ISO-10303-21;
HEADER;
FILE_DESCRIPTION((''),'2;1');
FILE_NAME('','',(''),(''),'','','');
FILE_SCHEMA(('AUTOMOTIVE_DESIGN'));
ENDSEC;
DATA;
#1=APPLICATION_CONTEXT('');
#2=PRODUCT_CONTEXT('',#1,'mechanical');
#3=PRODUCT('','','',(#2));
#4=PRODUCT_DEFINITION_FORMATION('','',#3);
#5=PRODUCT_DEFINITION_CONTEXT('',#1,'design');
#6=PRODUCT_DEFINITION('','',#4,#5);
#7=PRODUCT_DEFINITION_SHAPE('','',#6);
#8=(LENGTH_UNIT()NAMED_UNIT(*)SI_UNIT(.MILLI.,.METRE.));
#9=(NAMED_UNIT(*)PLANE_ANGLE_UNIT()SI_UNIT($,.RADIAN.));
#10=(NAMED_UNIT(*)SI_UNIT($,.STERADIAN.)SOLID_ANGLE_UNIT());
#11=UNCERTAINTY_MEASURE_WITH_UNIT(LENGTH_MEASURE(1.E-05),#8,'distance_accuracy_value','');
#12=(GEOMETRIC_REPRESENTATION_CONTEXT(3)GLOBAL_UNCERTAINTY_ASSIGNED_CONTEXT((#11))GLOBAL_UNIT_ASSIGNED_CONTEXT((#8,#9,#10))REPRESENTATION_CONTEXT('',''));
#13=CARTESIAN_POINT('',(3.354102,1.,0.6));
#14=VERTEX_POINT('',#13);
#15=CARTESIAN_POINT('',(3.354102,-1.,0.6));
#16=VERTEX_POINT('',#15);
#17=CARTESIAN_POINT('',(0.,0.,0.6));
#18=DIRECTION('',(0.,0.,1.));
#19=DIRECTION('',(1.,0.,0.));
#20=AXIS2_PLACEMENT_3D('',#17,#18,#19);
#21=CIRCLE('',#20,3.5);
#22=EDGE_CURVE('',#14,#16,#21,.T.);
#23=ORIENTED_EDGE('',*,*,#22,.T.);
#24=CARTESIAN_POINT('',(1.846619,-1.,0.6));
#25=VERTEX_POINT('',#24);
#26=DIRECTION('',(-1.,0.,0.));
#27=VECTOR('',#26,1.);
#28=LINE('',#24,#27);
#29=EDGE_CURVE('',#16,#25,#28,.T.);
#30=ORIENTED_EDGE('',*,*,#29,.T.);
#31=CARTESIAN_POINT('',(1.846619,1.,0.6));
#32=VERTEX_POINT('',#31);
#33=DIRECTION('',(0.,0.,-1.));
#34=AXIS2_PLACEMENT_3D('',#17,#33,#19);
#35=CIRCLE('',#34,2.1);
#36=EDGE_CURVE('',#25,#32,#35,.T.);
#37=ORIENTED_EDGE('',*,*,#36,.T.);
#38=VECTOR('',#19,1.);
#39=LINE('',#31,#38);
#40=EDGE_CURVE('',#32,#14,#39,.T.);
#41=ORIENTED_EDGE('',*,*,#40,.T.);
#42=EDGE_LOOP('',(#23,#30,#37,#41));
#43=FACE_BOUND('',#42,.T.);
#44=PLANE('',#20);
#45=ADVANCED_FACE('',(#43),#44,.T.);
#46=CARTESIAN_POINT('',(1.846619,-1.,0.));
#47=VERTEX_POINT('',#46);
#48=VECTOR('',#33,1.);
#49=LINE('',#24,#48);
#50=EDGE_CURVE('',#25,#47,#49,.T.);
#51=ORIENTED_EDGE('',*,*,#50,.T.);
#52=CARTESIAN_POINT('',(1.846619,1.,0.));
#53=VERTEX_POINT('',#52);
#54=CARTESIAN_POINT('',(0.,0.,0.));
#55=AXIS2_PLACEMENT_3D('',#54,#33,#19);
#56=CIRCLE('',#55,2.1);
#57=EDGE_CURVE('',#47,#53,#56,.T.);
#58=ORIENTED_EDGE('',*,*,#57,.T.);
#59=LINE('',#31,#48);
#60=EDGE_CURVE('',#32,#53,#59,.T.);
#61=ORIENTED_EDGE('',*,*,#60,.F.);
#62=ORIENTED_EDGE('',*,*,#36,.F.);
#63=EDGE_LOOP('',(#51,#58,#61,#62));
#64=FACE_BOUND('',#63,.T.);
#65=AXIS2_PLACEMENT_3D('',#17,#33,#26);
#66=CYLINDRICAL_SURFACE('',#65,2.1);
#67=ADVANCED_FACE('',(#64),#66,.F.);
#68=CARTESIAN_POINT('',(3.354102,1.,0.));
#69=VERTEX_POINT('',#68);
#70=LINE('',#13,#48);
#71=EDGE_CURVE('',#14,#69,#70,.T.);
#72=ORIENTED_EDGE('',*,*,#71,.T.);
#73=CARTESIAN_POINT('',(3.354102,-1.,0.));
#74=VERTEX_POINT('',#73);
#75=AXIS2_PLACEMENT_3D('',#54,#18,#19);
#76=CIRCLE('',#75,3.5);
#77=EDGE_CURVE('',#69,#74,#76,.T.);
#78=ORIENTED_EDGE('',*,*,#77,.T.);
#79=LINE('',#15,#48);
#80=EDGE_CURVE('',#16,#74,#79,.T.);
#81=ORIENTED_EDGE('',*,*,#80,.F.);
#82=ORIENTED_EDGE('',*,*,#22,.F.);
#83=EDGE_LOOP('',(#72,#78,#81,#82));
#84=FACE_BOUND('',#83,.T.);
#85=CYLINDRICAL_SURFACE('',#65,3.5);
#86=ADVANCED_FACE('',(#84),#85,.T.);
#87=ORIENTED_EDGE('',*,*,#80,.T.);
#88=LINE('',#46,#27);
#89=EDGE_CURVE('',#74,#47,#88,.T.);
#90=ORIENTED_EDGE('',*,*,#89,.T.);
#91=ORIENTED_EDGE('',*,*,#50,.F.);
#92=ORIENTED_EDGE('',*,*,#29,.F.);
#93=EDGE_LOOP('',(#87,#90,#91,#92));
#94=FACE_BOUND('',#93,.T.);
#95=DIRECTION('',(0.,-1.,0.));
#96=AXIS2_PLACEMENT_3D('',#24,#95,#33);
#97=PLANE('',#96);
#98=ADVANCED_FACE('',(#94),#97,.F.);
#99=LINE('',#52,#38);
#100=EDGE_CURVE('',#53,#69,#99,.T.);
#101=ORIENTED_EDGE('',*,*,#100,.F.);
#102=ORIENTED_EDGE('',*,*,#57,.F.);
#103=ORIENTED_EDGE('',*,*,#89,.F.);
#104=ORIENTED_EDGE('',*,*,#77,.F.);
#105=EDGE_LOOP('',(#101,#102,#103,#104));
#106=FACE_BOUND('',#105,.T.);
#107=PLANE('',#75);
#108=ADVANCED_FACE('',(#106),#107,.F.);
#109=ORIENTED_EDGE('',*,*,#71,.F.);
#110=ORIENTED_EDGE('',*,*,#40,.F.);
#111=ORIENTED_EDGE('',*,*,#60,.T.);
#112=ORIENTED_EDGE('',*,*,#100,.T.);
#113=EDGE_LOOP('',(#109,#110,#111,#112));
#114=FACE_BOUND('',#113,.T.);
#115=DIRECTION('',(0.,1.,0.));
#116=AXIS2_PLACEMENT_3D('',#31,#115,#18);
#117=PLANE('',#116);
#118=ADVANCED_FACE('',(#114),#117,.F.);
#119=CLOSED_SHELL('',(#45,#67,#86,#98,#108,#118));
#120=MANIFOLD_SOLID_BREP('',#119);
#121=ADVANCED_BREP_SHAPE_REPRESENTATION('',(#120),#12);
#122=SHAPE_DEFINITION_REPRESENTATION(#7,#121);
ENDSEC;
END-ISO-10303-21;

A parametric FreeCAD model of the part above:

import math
import FreeCAD as App
import Part
import Sketcher

doc = App.newDocument("Part")
body = doc.addObject("PartDesign::Body", "Body")

# Sketch on XY plane
sketch1 = body.newObject("Sketcher::SketchObject", "Sketch")
sketch1.AttachmentSupport = (doc.getObject("XY_Plane"), [""])
sketch1.MapMode = "FlatFace"
sketch1.addGeometry([
    Part.LineSegment(App.Vector(1.846619, 1, 0), App.Vector(3.354102, 1, 0)),
    Part.ArcOfCircle(Part.Circle(App.Vector(0, 0, 0), App.Vector(0, 0, 1), 3.5), math.radians(16.60155), math.radians(343.39845)),
    Part.LineSegment(App.Vector(3.354102, -1, 0), App.Vector(1.846619, -1, 0)),
    Part.ArcOfCircle(Part.Circle(App.Vector(0, 0, 0), App.Vector(0, 0, 1), 2.1), math.radians(28.43689), math.radians(331.56311)),
], False)
sketch1.addConstraint([
    Sketcher.Constraint("Coincident", 0, 2, 1, 1),
    Sketcher.Constraint("Coincident", 1, 2, 2, 1),
    Sketcher.Constraint("Coincident", 2, 2, 3, 2),
    Sketcher.Constraint("Coincident", 3, 1, 0, 1),
    Sketcher.Constraint("Horizontal", 0),
    Sketcher.Constraint("Horizontal", 2),
    Sketcher.Constraint("Coincident", 1, 3, -1, 1),
    Sketcher.Constraint("Coincident", 3, 3, -1, 1),
    Sketcher.Constraint("Vertical", 0, 2, 1, 2),
    Sketcher.Constraint("Radius", 1, 3.5),
    Sketcher.Constraint("Radius", 3, 2.1),
    Sketcher.Constraint("DistanceY", -1, 1, 0, 2, 1.0),
])
pad1 = body.newObject("PartDesign::Pad", "Pad")
pad1.Profile = sketch1
pad1.Length = 0.6

doc.recompute()
